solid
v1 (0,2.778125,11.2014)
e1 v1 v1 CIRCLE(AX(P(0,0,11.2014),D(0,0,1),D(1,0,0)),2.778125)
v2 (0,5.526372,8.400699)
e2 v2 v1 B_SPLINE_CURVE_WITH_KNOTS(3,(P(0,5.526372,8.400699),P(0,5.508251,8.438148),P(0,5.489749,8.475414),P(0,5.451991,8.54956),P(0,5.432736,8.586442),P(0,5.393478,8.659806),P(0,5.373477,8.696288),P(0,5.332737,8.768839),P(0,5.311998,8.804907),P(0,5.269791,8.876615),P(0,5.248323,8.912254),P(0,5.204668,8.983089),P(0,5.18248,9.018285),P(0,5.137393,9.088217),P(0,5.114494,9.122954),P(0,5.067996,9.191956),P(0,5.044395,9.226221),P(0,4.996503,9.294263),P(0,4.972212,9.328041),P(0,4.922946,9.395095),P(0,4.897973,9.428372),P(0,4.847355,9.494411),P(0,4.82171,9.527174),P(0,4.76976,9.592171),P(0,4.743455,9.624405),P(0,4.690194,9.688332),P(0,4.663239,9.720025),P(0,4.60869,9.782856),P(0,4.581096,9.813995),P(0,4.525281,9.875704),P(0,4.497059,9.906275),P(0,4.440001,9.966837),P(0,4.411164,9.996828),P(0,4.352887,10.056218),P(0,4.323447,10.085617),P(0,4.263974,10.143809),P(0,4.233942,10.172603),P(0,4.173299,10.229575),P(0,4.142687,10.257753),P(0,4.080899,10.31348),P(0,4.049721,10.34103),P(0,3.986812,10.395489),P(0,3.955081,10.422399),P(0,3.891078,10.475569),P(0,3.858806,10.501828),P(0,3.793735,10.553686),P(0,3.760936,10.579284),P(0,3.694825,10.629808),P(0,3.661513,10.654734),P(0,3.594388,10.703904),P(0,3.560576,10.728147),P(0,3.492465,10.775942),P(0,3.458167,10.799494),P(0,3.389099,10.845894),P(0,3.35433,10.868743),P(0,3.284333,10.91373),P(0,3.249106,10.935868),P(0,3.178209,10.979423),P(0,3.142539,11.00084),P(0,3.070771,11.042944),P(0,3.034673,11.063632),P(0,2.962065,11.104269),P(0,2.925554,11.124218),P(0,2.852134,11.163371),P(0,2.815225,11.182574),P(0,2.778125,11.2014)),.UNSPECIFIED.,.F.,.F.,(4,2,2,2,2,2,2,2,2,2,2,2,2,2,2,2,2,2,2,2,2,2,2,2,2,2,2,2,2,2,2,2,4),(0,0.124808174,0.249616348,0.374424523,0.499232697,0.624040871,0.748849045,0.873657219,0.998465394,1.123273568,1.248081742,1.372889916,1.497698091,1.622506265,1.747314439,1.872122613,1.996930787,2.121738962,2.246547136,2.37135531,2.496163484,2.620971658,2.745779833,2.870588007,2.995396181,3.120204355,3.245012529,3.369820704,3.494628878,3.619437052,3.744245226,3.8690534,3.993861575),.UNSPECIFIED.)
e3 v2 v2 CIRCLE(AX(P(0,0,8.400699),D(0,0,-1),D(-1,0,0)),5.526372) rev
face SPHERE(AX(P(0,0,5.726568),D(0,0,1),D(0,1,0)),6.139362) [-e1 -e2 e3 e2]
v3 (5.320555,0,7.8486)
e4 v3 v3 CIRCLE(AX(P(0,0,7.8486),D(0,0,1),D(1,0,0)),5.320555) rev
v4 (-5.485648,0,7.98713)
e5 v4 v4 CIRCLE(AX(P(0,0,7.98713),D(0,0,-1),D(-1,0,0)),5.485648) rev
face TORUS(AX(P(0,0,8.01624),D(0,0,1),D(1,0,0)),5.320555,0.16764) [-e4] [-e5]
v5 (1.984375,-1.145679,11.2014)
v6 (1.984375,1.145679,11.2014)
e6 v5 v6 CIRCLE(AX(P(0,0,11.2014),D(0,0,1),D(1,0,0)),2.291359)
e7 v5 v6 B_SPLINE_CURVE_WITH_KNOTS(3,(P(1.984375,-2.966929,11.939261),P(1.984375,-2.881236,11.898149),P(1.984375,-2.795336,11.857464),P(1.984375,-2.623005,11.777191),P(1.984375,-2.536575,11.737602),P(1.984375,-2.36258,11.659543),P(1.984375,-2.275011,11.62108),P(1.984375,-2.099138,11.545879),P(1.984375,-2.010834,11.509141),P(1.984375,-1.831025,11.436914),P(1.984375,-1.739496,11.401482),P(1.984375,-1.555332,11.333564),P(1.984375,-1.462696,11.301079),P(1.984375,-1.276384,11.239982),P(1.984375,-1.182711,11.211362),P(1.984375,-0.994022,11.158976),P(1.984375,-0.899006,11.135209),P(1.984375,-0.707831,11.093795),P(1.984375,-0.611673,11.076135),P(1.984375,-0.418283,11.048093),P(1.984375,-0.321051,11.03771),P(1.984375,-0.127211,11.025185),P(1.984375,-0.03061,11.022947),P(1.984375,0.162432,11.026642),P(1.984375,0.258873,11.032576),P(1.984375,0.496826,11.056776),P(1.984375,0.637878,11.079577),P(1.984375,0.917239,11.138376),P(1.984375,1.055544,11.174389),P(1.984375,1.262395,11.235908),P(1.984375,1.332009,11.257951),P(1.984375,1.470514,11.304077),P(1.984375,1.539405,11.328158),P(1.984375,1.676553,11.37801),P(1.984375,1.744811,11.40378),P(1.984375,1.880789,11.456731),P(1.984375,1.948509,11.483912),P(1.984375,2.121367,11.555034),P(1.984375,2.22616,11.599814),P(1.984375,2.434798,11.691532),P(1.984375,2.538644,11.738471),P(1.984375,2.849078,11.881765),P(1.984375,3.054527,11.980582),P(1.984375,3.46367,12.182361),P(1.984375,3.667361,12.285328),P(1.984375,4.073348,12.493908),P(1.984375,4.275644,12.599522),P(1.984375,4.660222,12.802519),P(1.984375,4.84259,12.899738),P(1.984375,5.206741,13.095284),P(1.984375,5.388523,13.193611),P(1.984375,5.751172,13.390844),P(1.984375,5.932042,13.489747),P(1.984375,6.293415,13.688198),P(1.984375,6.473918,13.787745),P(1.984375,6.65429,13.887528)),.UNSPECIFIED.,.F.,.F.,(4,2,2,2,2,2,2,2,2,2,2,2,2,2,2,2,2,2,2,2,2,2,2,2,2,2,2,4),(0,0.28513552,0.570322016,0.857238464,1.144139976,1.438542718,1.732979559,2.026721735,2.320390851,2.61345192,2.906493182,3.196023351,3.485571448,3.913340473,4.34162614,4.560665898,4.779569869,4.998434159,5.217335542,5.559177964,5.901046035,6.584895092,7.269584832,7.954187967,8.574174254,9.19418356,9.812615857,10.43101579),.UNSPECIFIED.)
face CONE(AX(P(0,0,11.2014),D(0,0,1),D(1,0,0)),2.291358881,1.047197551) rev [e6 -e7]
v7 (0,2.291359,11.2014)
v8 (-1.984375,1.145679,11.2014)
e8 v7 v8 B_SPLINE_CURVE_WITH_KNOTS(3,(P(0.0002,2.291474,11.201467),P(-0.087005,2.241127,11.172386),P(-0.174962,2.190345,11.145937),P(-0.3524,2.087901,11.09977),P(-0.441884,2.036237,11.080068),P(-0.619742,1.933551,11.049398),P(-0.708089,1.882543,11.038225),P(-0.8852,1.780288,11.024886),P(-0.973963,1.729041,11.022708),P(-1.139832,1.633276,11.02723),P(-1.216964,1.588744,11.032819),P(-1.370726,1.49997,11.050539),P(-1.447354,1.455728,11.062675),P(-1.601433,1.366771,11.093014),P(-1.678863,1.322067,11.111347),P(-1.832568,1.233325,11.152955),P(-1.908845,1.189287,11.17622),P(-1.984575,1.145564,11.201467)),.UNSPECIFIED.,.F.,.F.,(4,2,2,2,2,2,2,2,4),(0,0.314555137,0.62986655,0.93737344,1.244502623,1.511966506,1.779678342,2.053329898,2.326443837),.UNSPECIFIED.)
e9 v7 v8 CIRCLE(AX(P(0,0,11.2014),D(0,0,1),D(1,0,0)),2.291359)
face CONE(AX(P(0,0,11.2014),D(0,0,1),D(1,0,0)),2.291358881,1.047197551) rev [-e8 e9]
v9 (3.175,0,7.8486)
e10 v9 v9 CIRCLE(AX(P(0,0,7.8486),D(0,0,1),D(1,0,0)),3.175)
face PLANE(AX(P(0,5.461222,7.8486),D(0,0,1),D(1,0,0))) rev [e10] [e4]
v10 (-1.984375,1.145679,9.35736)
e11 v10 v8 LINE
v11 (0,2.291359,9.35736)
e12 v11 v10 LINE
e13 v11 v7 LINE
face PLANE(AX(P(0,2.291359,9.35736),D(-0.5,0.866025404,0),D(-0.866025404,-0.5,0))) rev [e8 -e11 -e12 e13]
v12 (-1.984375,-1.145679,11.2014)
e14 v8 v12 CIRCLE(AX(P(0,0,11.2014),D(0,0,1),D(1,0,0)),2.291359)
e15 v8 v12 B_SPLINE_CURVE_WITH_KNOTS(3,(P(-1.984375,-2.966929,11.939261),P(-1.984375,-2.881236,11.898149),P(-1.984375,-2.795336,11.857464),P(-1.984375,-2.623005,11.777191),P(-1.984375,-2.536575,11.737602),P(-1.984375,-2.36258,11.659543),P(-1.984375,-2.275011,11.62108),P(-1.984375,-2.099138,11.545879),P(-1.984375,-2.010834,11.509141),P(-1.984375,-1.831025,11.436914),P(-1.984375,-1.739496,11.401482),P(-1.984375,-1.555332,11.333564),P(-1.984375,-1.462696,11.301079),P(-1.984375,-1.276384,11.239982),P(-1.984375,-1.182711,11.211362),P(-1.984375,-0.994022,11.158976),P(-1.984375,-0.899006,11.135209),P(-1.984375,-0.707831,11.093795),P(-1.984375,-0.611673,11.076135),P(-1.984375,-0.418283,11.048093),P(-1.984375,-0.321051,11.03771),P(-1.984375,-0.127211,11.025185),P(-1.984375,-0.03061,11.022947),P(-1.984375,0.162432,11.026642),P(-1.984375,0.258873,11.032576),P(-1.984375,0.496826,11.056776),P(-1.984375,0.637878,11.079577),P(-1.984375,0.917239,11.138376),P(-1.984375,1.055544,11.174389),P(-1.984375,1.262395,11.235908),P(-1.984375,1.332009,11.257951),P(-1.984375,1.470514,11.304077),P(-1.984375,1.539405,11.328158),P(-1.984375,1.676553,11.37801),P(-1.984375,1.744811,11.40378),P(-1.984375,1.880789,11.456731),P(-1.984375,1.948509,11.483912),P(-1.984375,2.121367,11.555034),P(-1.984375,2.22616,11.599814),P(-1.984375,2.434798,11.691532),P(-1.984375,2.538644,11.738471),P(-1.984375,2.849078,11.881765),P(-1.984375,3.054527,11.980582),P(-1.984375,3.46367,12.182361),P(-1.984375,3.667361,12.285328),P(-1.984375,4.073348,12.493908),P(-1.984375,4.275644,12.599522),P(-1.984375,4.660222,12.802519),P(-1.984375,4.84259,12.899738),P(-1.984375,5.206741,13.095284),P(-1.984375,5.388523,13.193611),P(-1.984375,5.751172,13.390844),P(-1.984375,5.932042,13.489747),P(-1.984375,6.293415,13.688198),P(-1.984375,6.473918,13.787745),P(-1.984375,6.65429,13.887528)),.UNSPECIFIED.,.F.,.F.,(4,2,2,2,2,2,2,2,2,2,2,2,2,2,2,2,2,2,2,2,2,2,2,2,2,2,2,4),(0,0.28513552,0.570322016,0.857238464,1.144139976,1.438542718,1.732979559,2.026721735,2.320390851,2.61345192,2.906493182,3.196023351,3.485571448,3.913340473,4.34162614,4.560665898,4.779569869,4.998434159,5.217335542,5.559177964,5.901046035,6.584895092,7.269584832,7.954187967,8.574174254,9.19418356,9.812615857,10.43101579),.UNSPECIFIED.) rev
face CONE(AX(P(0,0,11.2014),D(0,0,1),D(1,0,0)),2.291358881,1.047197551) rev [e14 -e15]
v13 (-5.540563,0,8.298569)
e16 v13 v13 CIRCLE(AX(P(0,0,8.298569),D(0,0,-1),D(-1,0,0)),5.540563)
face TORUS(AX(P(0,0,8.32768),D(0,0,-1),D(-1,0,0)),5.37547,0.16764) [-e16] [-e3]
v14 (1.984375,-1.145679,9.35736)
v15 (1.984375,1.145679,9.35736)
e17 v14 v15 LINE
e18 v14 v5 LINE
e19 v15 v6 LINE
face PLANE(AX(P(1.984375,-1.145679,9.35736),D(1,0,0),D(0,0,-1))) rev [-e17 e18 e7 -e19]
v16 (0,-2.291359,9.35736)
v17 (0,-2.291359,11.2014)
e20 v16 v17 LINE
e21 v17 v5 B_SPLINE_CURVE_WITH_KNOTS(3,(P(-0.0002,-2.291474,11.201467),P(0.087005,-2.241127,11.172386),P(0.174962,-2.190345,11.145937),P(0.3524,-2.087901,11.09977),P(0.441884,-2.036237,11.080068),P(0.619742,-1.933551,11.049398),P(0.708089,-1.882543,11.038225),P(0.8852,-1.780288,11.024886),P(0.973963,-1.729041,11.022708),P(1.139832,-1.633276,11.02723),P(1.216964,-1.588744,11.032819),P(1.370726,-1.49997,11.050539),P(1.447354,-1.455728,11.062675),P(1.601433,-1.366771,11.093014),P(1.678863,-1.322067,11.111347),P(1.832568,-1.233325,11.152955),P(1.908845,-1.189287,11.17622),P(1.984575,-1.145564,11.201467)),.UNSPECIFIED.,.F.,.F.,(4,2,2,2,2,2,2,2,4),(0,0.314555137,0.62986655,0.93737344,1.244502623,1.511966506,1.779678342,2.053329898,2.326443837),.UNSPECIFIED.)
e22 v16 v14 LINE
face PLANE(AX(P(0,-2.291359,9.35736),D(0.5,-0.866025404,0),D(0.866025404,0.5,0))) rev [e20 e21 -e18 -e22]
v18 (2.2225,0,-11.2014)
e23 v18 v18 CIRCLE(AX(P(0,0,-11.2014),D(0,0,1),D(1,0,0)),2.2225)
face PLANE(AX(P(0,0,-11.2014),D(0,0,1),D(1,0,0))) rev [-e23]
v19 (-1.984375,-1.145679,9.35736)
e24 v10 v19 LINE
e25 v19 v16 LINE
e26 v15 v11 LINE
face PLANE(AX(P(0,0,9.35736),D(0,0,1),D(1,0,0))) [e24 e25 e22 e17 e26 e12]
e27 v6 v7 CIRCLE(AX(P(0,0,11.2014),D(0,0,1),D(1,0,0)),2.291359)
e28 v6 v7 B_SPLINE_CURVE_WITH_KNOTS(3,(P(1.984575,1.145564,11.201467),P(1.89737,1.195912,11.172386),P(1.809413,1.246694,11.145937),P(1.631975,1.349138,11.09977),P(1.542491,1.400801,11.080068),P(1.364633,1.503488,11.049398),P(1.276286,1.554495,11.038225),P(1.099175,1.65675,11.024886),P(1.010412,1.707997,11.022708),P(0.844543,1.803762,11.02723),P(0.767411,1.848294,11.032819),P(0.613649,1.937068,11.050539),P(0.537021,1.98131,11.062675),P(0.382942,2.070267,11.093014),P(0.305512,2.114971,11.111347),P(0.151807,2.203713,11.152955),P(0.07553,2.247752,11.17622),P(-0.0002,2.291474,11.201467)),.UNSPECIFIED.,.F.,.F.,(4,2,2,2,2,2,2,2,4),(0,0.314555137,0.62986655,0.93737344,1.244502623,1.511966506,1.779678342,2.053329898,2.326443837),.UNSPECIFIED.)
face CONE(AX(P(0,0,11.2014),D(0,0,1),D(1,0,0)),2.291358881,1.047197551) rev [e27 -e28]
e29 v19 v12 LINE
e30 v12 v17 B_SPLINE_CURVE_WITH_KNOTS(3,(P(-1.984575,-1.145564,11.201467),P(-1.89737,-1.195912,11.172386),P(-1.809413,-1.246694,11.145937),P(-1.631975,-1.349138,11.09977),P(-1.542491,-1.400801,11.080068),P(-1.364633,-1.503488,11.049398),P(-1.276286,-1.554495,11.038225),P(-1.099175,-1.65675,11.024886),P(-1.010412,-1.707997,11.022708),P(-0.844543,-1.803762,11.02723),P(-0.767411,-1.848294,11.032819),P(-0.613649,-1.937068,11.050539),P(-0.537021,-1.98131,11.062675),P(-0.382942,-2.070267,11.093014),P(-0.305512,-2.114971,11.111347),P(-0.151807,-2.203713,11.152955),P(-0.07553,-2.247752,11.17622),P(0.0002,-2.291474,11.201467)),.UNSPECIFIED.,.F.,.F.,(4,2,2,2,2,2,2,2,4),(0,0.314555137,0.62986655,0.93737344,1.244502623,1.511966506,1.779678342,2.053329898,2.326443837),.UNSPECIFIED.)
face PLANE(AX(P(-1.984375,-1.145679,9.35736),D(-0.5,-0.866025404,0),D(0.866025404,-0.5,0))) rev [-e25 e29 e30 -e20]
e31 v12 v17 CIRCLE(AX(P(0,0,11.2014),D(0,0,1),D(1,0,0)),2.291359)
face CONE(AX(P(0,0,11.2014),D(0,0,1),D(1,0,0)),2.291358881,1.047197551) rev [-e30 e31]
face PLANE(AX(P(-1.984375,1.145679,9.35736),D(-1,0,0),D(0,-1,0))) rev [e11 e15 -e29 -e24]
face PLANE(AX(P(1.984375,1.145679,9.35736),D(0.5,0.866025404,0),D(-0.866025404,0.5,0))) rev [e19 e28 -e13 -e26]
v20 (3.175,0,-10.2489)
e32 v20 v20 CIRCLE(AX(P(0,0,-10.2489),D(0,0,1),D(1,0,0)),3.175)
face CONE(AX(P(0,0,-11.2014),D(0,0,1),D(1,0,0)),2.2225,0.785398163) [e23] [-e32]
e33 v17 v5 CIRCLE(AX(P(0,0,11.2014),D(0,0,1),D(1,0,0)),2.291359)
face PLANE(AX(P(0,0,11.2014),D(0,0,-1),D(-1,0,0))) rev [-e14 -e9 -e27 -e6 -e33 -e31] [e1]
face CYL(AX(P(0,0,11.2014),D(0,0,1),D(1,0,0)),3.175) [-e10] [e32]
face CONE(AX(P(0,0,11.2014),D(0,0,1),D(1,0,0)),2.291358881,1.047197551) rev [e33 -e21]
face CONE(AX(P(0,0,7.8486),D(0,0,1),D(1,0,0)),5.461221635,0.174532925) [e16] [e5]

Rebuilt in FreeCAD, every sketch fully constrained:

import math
import FreeCAD as App
import Part
import Sketcher
from FreeCAD import Vector
Q = App.Units.Quantity


def edges_at(feature, points):
    """Names of the edges that pass closest to the given points."""
    edges = feature.Shape.Edges
    near = lambda p: min(range(len(edges)), key=lambda i: edges[i].distToShape(Part.Vertex(*p))[0])
    return sorted({f"Edge{near(p) + 1}" for p in points})


def add_polygon(sketch, points):
    """Adds a closed chain of lines whose ends are joined by coincident constraints."""
    first, n = sketch.GeometryCount, len(points)
    for a, b in zip(points, points[1:] + points[:1]):
        sketch.addGeometry(Part.LineSegment(App.Vector(*a, 0), App.Vector(*b, 0)), False)
    for i in range(n):
        sketch.addConstraint(Sketcher.Constraint("Coincident", first + i, 2, first + (i + 1) % n, 1))

doc = App.newDocument("Part")
body = doc.addObject("PartDesign::Body", "Body")

# Sketch on YZ plane
sketch1 = body.newObject("Sketcher::SketchObject", "Sketch")
sketch1.AttachmentSupport = (doc.getObject("YZ_Plane"), [""])
sketch1.MapMode = "FlatFace"
sketch1.addGeometry(Part.LineSegment(Vector(2.8, 11.2, 0), Vector(0, 11.2, 0)), False)
sketch1.addGeometry(Part.LineSegment(Vector(0, 11.2, 0), Vector(0, -11.2, 0)), False)
sketch1.addGeometry(Part.LineSegment(Vector(0, -11.2, 0), Vector(2.2, -11.2, 0)), False)
sketch1.addGeometry(Part.LineSegment(Vector(2.2, -11.2, 0), Vector(3.2, -10.2, 0)), False)
sketch1.addGeometry(Part.LineSegment(Vector(3.2, -10.2, 0), Vector(3.2, 7.8, 0)), False)
sketch1.addGeometry(Part.LineSegment(Vector(3.2, 7.8, 0), Vector(5.5, 7.8, 0)), False)
sketch1.addGeometry(Part.LineSegment(Vector(5.5, 7.8, 0), Vector(5.5, 8.4, 0)), False)
sketch1.addGeometry(Part.ArcOfCircle(Part.Circle(Vector(0, 5.7, 0), Vector(0, 0, 1), 6.1), math.radians(25), math.radians(63)), False)
sketch1.addConstraint(Sketcher.Constraint("Coincident", 0, 2, 1, 1))
sketch1.addConstraint(Sketcher.Constraint("Coincident", 1, 2, 2, 1))
sketch1.addConstraint(Sketcher.Constraint("Coincident", 2, 2, 3, 1))
sketch1.addConstraint(Sketcher.Constraint("Coincident", 3, 2, 4, 1))
sketch1.addConstraint(Sketcher.Constraint("Coincident", 4, 2, 5, 1))
sketch1.addConstraint(Sketcher.Constraint("Coincident", 5, 2, 6, 1))
sketch1.addConstraint(Sketcher.Constraint("Coincident", 6, 2, 7, 1))
sketch1.addConstraint(Sketcher.Constraint("Coincident", 7, 2, 0, 1))
sketch1.addConstraint(Sketcher.Constraint("Horizontal", 0))
sketch1.addConstraint(Sketcher.Constraint("Vertical", 1))
sketch1.addConstraint(Sketcher.Constraint("Horizontal", 2))
sketch1.addConstraint(Sketcher.Constraint("Vertical", 4))
sketch1.addConstraint(Sketcher.Constraint("Horizontal", 5))
sketch1.addConstraint(Sketcher.Constraint("Symmetric", 0, 2, 1, 2, -1, 1))
sketch1.addConstraint(Sketcher.Constraint("PointOnObject", 7, 3, -2))
sketch1.addConstraint(Sketcher.Constraint("Angle", 3, Q("45 deg")))
sketch1.addConstraint(Sketcher.Constraint("Angle", 6, Q("80 deg")))
sketch1.addConstraint(Sketcher.Constraint("DistanceX", 0, 2, 0, 1, Q("0.109375 in")))
sketch1.addConstraint(Sketcher.Constraint("DistanceY", 1, 2, 1, 1, Q("0.882 in")))
sketch1.addConstraint(Sketcher.Constraint("DistanceY", 2, 2, 4, 2, Q("0.75 in")))
sketch1.addConstraint(Sketcher.Constraint("DistanceX", 2, 1, 2, 2, Q("0.0875 in")))
sketch1.addConstraint(Sketcher.Constraint("DistanceY", 4, 1, 4, 2, Q("0.7125 in")))
sketch1.addConstraint(Sketcher.Constraint("Radius", 7, 6.139362))
sketch1.addConstraint(Sketcher.Constraint("DistanceX", -1, 1, 6, 2, Q("0.2185 in")))
revolution = body.newObject("PartDesign::Revolution", "Revolution")
revolution.Profile = sketch1
revolution.ReferenceAxis = (sketch1, ["V_Axis"])
revolution.Angle = 360

# Sketch on XY plane
sketch2 = body.newObject("Sketcher::SketchObject", "Sketch001")
sketch2.AttachmentSupport = (doc.getObject("XY_Plane"), [""])
sketch2.MapMode = "FlatFace"
sketch2.AttachmentOffset = App.Placement(Vector(0, 0, 0.441 * 25.4), App.Rotation())
add_polygon(sketch2, [(-2, -1.1), (0, -2.3), (2, -1.1), (2, 1.1), (0, 2.3), (-2, 1.1)])  # lines 0-5
sketch2.addConstraint(Sketcher.Constraint("Vertical", 2))
sketch2.addConstraint(Sketcher.Constraint("Vertical", 5))
sketch2.addConstraint(Sketcher.Constraint("Symmetric", 0, 2, 3, 2, -1, 1))
sketch2.addConstraint(Sketcher.Constraint("Symmetric", 1, 2, 4, 2, -1, 1))
sketch2.addConstraint(Sketcher.Constraint("PointOnObject", 0, 2, -2))
sketch2.addConstraint(Sketcher.Constraint("Parallel", 0, 3))
sketch2.addConstraint(Sketcher.Constraint("Horizontal", 2, 2, 4, 2))
sketch2.addConstraint(Sketcher.Constraint("Angle", 0, Q("-30 deg")))
sketch2.addConstraint(Sketcher.Constraint("DistanceX", -1, 1, 1, 2, Q("0.078125 in")))
sketch2.addConstraint(Sketcher.Constraint("DistanceY", 2, 1, 2, 2, 2.291359))
pocket1 = body.newObject("PartDesign::Pocket", "Pocket")
pocket1.Profile = sketch2
pocket1.Length = Q("0.0726 in")

# Sketch on YZ plane
sketch3 = body.newObject("Sketcher::SketchObject", "Sketch002")
sketch3.AttachmentSupport = (doc.getObject("YZ_Plane"), [""])
sketch3.MapMode = "FlatFace"
add_polygon(sketch3, [(0, 11.2), (-2.3, 11.2), (0, 9.9)])  # lines 0-2
sketch3.addConstraint(Sketcher.Constraint("Horizontal", 0))
sketch3.addConstraint(Sketcher.Constraint("Vertical", 2))
sketch3.addConstraint(Sketcher.Constraint("PointOnObject", 1, 2, -2))
sketch3.addConstraint(Sketcher.Constraint("Angle", 1, Q("-30 deg")))
sketch3.addConstraint(Sketcher.Constraint("DistanceY", -1, 1, 0, 2, Q("0.441 in")))
sketch3.addConstraint(Sketcher.Constraint("DistanceX", 0, 2, 0, 1, 2.291359))
groove = body.newObject("PartDesign::Groove", "Groove")
groove.Profile = sketch3
groove.ReferenceAxis = (sketch3, ["V_Axis"])
groove.Angle = 360
doc.recompute()

fillet = body.newObject("PartDesign::Fillet", "Fillet")
fillet.Base = (groove, edges_at(groove, [(-5.461, 0, 7.849), (-5.55, 0, 8.352)]))
fillet.Radius = Q("0.0066 in")

doc.recompute()
